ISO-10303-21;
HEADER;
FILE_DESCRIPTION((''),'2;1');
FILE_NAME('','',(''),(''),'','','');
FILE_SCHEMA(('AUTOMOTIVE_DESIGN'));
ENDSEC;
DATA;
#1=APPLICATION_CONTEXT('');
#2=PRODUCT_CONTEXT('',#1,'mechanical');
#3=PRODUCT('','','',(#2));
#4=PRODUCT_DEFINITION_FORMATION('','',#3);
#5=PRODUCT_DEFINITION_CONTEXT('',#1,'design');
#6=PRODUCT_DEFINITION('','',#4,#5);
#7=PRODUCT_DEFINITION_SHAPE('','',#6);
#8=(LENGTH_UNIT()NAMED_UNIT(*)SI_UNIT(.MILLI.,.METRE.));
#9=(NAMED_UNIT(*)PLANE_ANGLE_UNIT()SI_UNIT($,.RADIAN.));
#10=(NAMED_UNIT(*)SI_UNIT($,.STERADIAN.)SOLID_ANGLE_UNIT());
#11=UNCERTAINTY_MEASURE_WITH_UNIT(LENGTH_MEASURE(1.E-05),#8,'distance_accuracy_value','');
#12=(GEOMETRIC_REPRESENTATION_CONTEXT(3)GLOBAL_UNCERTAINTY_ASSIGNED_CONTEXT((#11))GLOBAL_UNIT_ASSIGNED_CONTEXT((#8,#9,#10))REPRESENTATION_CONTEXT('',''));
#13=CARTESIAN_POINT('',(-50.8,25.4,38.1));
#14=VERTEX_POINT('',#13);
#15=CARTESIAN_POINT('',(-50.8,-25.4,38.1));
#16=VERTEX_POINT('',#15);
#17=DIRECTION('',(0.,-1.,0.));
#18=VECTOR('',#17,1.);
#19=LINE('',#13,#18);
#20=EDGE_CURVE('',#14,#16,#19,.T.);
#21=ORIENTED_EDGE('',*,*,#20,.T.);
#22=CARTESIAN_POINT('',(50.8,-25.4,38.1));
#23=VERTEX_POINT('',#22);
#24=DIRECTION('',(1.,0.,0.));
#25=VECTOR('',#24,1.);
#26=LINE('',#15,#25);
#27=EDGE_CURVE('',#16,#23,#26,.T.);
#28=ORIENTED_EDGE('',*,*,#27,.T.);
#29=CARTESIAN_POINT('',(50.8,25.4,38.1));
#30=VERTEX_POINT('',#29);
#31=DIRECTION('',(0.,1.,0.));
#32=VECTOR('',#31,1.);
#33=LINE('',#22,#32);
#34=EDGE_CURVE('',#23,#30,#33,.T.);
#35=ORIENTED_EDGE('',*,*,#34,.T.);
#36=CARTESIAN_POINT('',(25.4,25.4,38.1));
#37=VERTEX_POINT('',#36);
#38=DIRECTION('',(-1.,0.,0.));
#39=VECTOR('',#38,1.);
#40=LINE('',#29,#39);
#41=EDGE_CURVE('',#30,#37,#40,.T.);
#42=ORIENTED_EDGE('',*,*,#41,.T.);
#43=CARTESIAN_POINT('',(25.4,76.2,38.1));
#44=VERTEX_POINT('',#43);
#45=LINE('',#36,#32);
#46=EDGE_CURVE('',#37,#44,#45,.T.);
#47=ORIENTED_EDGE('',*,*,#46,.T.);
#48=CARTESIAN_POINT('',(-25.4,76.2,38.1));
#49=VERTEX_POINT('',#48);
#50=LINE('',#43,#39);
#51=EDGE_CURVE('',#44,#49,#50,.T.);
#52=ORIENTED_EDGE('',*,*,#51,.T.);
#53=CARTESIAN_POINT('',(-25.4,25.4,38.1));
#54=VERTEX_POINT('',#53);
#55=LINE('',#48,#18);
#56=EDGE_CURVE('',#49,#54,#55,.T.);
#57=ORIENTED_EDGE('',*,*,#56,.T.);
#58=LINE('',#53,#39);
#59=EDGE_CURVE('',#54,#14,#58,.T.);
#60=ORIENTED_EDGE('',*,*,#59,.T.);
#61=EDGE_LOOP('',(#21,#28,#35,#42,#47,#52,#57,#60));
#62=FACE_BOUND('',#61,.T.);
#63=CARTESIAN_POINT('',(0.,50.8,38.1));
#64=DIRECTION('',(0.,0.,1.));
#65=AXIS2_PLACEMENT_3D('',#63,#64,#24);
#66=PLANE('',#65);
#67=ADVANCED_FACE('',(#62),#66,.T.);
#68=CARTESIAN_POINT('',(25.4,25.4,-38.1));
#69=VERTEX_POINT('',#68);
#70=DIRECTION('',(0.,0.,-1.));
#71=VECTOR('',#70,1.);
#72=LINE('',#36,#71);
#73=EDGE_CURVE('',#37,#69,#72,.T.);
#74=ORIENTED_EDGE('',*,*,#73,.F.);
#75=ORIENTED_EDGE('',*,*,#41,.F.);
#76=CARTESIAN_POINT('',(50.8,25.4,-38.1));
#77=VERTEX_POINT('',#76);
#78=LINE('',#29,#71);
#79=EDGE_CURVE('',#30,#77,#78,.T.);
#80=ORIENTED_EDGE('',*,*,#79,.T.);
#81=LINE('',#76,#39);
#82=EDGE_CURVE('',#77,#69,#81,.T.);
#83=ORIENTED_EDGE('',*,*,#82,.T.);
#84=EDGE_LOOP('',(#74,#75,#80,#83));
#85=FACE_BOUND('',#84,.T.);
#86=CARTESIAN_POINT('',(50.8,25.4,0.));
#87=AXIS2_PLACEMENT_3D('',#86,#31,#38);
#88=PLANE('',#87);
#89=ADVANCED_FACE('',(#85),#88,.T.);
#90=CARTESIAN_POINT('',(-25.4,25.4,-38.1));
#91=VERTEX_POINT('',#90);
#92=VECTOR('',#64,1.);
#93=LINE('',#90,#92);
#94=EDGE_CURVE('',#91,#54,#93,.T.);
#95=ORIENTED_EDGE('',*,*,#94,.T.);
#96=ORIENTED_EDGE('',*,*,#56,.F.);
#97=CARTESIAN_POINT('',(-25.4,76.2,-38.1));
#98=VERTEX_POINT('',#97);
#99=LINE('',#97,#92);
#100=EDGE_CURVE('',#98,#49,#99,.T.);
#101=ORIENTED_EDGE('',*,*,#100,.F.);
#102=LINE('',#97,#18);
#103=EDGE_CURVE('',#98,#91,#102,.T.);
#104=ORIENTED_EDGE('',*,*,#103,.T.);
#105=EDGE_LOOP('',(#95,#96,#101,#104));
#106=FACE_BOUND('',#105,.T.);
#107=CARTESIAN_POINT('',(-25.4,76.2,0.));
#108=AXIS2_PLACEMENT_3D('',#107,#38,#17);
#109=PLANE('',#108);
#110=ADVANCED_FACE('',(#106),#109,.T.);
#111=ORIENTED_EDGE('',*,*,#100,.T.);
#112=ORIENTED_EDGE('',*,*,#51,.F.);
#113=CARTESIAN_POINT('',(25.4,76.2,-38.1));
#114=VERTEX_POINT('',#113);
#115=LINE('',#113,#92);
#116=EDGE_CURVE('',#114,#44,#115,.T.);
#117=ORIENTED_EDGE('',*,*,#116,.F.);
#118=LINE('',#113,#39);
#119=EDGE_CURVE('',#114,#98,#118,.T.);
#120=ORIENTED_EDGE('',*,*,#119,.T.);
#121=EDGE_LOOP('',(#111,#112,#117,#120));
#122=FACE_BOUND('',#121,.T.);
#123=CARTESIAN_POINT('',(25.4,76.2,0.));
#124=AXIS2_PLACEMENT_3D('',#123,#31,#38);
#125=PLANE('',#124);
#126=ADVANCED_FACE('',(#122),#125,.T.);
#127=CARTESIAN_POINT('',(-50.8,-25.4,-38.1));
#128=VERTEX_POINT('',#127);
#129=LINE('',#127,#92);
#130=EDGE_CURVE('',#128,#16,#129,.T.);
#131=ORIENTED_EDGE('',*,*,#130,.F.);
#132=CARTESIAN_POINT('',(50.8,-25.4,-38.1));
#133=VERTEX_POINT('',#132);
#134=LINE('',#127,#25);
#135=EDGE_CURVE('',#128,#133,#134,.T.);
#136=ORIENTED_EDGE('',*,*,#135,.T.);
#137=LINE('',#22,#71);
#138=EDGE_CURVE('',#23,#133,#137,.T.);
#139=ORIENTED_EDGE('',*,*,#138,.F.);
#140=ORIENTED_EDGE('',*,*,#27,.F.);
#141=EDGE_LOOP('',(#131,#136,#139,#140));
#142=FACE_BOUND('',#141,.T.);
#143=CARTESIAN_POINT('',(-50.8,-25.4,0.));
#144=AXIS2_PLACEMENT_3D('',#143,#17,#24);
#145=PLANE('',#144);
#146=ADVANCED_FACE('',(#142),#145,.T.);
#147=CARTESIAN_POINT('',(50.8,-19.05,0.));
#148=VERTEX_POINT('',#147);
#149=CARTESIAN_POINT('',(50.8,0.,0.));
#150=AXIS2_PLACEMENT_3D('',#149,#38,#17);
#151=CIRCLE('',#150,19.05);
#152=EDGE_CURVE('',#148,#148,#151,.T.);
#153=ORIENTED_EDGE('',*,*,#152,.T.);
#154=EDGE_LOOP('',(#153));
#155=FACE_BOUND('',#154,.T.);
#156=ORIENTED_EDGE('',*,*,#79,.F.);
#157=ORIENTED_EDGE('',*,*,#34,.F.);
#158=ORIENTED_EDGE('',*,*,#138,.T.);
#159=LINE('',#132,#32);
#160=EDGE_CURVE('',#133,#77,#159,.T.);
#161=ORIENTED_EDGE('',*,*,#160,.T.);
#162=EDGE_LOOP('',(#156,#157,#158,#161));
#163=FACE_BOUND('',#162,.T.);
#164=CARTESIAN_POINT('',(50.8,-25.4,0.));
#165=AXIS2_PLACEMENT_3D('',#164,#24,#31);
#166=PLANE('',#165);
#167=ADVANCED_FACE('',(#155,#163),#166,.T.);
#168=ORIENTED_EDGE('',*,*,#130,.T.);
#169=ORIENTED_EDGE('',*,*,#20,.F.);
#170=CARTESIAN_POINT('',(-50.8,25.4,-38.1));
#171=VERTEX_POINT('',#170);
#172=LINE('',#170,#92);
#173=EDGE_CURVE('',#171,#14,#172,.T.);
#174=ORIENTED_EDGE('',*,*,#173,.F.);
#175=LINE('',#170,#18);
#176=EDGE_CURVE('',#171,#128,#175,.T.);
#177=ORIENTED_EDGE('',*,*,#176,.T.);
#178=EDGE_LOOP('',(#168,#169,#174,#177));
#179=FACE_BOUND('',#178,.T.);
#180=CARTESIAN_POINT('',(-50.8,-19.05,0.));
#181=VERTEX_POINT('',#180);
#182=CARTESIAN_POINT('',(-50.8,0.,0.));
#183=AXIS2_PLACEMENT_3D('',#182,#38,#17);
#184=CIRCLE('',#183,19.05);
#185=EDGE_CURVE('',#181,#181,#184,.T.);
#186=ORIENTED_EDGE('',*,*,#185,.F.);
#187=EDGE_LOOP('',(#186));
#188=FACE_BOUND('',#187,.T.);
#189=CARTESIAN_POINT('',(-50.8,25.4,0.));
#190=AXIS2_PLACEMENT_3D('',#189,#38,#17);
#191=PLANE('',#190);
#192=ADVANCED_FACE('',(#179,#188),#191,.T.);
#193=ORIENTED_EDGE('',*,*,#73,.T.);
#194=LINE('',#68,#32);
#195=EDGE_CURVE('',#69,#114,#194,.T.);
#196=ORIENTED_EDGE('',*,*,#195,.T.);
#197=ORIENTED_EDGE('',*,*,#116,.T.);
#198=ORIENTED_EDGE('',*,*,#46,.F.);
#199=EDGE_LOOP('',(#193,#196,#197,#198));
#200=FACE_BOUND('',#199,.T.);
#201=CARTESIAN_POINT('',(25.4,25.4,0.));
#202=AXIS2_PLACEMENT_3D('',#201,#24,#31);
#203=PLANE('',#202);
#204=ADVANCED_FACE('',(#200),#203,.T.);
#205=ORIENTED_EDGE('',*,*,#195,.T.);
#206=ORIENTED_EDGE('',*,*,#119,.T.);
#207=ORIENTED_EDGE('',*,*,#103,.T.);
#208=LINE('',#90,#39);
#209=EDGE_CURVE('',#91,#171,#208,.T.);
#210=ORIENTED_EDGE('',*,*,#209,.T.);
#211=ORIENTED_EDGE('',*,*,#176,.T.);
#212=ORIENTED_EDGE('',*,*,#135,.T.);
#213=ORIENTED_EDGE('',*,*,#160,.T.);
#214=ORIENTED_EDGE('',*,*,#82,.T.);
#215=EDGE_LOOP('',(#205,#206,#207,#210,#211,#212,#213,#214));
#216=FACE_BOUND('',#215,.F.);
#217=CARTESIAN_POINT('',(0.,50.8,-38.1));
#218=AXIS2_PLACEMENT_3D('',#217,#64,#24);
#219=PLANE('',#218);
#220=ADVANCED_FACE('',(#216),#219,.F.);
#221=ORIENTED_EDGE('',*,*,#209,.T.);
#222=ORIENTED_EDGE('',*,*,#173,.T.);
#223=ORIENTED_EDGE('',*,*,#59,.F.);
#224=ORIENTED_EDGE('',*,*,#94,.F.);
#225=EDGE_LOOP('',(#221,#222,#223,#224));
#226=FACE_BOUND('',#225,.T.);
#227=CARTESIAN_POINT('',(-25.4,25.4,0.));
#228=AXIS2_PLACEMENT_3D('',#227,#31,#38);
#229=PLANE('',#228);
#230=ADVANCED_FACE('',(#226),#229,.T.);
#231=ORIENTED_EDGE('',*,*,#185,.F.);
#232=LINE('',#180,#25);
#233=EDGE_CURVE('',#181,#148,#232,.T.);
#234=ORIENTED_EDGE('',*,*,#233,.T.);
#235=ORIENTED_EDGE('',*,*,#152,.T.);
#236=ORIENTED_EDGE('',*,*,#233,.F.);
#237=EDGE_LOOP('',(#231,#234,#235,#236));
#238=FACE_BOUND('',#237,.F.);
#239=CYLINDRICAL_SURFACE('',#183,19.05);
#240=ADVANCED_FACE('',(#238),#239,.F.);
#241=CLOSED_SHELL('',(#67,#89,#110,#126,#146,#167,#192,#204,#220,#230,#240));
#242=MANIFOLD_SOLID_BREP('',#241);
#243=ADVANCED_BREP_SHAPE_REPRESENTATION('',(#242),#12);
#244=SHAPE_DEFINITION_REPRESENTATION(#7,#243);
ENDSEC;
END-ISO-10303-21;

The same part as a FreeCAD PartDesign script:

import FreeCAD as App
import Part
import Sketcher
Q = App.Units.Quantity

doc = App.newDocument("Part")
body = doc.addObject("PartDesign::Body", "Body")

sketch1 = body.newObject("Sketcher::SketchObject", "Sketch")
sketch1.AttachmentSupport = (doc.getObject("XY_Plane"), [""])
sketch1.MapMode = "FlatFace"
sketch1.addGeometry([
    Part.LineSegment(App.Vector(25.4, 25.4, 0), App.Vector(25.4, 76.2, 0)),
    Part.LineSegment(App.Vector(25.4, 76.2, 0), App.Vector(-25.4, 76.2, 0)),
    Part.LineSegment(App.Vector(-25.4, 76.2, 0), App.Vector(-25.4, 25.4, 0)),
    Part.LineSegment(App.Vector(-25.4, 25.4, 0), App.Vector(-50.8, 25.4, 0)),
    Part.LineSegment(App.Vector(-50.8, 25.4, 0), App.Vector(-50.8, -25.4, 0)),
    Part.LineSegment(App.Vector(-50.8, -25.4, 0), App.Vector(50.8, -25.4, 0)),
    Part.LineSegment(App.Vector(50.8, -25.4, 0), App.Vector(50.8, 25.4, 0)),
    Part.LineSegment(App.Vector(50.8, 25.4, 0), App.Vector(25.4, 25.4, 0)),
], False)
sketch1.addConstraint([
    Sketcher.Constraint("Coincident", 0, 2, 1, 1),
    Sketcher.Constraint("Coincident", 1, 2, 2, 1),
    Sketcher.Constraint("Coincident", 2, 2, 3, 1),
    Sketcher.Constraint("Coincident", 3, 2, 4, 1),
    Sketcher.Constraint("Coincident", 4, 2, 5, 1),
    Sketcher.Constraint("Coincident", 5, 2, 6, 1),
    Sketcher.Constraint("Coincident", 6, 2, 7, 1),
    Sketcher.Constraint("Coincident", 7, 2, 0, 1),
    Sketcher.Constraint("Vertical", 0),
    Sketcher.Constraint("Horizontal", 1),
    Sketcher.Constraint("Vertical", 2),
    Sketcher.Constraint("Horizontal", 3),
    Sketcher.Constraint("Vertical", 4),
    Sketcher.Constraint("Horizontal", 5),
    Sketcher.Constraint("Vertical", 6),
    Sketcher.Constraint("Horizontal", 7),
    Sketcher.Constraint("Symmetric", 3, 2, 5, 2, -1, 1),
    Sketcher.Constraint("Symmetric", 2, 2, 7, 2, -2),
    Sketcher.Constraint("Equal", 1, 0),
    Sketcher.Constraint("Equal", 2, 4),
    Sketcher.Constraint("DistanceX", 1, 2, 1, 1, Q("2 in")),
    Sketcher.Constraint("DistanceX", 3, 2, 3, 1, Q("1 in")),
])
pad1 = body.newObject("PartDesign::Pad", "Pad")
pad1.Profile = sketch1
pad1.Length = Q("3 in")
pad1.Midplane = True

sketch2 = body.newObject("Sketcher::SketchObject", "Sketch001")
sketch2.AttachmentSupport = (doc.getObject("YZ_Plane"), [""])
sketch2.MapMode = "FlatFace"
sketch2.AttachmentOffset = App.Placement(App.Vector(0, 0, -2 * 25.4), App.Rotation())
sketch2.addGeometry(Part.Circle(App.Vector(0, 0, 0), App.Vector(0, 0, 1), 19.05), False)
sketch2.addConstraint([
    Sketcher.Constraint("Coincident", 0, 3, -1, 1),
    Sketcher.Constraint("Diameter", 0, Q("1.5 in")),
])
pocket1 = body.newObject("PartDesign::Pocket", "Pocket")
pocket1.Profile = sketch2
pocket1.Type = "ThroughAll"
pocket1.Reversed = True

doc.recompute()
